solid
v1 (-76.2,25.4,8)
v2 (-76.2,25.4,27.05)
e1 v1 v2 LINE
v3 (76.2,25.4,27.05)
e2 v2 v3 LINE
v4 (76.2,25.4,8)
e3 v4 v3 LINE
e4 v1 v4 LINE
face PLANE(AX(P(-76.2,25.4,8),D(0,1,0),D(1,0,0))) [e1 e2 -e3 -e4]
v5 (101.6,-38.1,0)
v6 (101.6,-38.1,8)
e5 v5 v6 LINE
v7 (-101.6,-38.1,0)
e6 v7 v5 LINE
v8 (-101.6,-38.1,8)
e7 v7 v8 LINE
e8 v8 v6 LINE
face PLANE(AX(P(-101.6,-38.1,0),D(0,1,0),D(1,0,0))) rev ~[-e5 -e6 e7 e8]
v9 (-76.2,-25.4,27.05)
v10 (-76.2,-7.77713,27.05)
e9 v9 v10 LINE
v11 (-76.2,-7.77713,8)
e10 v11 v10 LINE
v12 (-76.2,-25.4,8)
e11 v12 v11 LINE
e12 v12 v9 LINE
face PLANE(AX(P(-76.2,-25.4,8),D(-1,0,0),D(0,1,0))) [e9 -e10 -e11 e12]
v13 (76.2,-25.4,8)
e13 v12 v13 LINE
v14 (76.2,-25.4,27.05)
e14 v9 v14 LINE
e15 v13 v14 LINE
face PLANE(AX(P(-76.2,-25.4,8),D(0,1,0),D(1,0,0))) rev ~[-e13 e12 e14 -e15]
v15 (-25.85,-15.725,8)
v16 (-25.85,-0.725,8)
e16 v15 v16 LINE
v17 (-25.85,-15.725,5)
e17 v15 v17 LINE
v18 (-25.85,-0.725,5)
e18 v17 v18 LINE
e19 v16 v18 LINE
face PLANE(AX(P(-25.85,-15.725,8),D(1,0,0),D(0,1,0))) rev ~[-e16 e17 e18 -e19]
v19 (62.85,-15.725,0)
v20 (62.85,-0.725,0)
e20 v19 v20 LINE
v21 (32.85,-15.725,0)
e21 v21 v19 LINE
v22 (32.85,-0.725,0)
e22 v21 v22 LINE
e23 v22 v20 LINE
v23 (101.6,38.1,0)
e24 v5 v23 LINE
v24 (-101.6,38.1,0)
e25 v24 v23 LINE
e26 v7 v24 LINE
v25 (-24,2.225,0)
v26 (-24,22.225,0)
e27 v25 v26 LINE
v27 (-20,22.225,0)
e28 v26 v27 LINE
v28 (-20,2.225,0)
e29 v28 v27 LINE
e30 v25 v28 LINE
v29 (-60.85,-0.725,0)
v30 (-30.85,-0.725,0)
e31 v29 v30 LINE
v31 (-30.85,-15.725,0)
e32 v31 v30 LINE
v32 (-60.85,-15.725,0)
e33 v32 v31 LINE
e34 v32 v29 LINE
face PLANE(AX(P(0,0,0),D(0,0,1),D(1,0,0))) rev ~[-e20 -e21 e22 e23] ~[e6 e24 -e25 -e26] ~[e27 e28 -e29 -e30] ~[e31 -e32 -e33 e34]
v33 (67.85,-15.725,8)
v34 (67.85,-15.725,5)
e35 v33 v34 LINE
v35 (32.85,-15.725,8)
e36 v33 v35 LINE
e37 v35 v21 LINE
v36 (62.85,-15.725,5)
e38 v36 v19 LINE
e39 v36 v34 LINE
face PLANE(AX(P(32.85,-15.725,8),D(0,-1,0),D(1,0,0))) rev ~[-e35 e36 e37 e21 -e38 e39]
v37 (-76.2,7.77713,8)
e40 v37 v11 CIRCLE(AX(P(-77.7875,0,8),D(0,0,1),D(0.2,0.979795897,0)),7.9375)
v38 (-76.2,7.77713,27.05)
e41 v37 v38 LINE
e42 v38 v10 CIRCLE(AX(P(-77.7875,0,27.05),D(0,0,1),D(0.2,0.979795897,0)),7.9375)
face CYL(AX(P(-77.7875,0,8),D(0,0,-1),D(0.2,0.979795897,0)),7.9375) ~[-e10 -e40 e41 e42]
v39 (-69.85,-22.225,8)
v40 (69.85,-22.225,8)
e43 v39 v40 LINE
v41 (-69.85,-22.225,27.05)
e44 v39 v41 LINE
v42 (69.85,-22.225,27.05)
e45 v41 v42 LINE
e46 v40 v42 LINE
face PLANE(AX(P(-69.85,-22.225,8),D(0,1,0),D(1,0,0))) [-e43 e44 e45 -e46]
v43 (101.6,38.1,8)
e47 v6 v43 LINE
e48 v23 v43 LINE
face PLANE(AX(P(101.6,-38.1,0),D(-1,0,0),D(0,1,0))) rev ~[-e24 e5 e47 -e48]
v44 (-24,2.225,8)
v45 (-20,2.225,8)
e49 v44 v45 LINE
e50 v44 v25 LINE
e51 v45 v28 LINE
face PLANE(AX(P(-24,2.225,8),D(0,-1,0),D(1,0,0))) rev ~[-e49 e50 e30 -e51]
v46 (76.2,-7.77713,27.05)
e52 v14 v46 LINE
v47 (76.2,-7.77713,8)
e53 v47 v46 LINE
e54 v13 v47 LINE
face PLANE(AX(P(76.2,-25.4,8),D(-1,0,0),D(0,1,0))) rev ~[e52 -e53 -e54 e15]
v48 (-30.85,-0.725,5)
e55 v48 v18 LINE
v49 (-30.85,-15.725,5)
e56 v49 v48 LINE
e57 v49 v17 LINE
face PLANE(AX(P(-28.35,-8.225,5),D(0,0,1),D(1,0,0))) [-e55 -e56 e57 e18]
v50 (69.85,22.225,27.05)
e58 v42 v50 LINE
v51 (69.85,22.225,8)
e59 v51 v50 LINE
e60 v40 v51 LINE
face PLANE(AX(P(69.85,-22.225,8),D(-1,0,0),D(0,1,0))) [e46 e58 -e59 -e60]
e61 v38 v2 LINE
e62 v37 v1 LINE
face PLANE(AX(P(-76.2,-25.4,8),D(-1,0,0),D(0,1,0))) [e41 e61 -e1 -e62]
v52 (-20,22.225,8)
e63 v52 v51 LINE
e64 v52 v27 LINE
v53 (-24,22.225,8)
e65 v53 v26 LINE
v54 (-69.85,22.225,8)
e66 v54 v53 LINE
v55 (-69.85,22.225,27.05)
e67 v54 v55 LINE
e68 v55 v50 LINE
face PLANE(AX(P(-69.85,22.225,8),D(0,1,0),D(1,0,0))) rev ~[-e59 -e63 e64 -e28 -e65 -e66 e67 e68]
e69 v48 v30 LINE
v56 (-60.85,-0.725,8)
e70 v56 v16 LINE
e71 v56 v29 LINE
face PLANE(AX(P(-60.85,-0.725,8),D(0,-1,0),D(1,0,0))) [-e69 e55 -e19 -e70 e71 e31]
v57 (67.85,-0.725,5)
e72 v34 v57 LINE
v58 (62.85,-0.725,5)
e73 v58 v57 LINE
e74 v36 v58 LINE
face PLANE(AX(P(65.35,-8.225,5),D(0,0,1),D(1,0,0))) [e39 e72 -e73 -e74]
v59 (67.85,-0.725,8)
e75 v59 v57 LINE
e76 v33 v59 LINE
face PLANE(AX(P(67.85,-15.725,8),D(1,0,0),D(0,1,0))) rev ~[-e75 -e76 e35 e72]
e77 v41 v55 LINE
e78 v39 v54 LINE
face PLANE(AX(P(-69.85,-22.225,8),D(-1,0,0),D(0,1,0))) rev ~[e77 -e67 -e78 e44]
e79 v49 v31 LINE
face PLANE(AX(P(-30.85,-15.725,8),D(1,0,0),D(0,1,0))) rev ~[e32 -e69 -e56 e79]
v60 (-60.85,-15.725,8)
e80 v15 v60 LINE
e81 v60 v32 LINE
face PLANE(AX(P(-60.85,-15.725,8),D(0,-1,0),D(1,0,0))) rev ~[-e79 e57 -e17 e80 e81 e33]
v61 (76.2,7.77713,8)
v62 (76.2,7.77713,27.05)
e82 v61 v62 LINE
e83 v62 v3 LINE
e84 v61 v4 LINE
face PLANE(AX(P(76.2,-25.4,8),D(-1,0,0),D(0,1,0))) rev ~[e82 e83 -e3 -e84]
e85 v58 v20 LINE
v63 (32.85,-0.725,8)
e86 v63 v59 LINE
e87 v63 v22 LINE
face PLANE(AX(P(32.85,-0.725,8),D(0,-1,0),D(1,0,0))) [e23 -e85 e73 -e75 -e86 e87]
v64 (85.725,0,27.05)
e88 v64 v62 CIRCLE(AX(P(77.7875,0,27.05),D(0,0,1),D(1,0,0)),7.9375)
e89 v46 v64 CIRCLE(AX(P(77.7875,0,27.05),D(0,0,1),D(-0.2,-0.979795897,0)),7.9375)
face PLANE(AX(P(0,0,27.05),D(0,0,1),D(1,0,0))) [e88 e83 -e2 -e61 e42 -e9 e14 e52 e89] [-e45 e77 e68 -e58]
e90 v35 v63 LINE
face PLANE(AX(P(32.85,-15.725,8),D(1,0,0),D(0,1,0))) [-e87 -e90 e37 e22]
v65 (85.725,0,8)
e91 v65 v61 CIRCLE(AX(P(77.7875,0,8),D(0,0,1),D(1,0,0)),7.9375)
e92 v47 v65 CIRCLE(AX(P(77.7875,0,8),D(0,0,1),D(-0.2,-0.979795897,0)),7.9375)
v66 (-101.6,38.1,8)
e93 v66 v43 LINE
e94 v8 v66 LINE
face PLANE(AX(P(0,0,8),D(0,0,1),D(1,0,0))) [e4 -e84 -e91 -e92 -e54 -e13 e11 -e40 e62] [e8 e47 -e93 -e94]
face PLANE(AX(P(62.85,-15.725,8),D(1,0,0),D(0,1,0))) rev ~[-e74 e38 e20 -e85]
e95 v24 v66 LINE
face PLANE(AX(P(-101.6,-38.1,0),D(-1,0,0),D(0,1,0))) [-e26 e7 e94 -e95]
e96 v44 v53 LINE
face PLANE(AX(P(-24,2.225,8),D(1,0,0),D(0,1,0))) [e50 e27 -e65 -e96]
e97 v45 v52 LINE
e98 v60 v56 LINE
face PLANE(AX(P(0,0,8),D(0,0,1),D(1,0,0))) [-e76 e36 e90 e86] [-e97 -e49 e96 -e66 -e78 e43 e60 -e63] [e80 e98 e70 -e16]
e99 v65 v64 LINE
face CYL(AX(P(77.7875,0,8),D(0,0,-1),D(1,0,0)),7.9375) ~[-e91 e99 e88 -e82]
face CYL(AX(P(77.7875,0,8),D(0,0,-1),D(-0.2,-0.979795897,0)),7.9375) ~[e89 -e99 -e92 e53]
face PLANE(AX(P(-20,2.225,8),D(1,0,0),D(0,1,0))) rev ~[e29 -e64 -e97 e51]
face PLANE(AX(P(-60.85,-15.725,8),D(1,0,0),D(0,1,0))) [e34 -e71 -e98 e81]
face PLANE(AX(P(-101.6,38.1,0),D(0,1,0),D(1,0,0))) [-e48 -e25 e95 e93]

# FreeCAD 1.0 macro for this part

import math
import FreeCAD as App
import Part
import Sketcher

V = App.Vector


def add_polygon(sketch, points):
    """Adds a closed chain of lines whose ends are joined by coincident constraints."""
    first, n = sketch.GeometryCount, len(points)
    for a, b in zip(points, points[1:] + points[:1]):
        sketch.addGeometry(Part.LineSegment(App.Vector(*a, 0), App.Vector(*b, 0)), False)
    for i in range(n):
        sketch.addConstraint(Sketcher.Constraint("Coincident", first + i, 2, first + (i + 1) % n, 1))

doc = App.newDocument("Part")
body = doc.addObject("PartDesign::Body", "Body")

# Sketch on XY plane
sketch1 = doc.addObject("Sketcher::SketchObject", "Sketch")
body.addObject(sketch1)
sketch1.AttachmentSupport = (doc.XY_Plane, [""])
sketch1.MapMode = "FlatFace"
add_polygon(sketch1, [(-102, 38), (-102, -38), (102, -38), (102, 38)])  # lines 0-3
sketch1.addConstraint(Sketcher.Constraint("Vertical", 0))
sketch1.addConstraint(Sketcher.Constraint("Horizontal", 1))
sketch1.addConstraint(Sketcher.Constraint("Vertical", 2))
sketch1.addConstraint(Sketcher.Constraint("Horizontal", 3))
sketch1.addConstraint(Sketcher.Constraint("Symmetric", 0, 2, 2, 2, -1, 1))
sketch1.addConstraint(Sketcher.Constraint("DistanceX", 1, 1, 1, 2, 203.2))
sketch1.addConstraint(Sketcher.Constraint("DistanceY", 0, 2, 0, 1, 76.2))
pad1 = doc.addObject("PartDesign::Pad", "Pad")
body.addObject(pad1)
pad1.Profile = sketch1
pad1.Length = 8

# Sketch on XY plane
sketch2 = doc.addObject("Sketcher::SketchObject", "Sketch001")
body.addObject(sketch2)
sketch2.AttachmentSupport = (doc.XY_Plane, [""])
sketch2.MapMode = "FlatFace"
sketch2.AttachmentOffset = App.Placement(V(0, 0, 8), App.Rotation())
sketch2.addGeometry(Part.LineSegment(V(-76, -8, 0), V(-76, -25, 0)), False)  # 0
sketch2.addGeometry(Part.LineSegment(V(-76, -25, 0), V(76, -25, 0)), False)  # 1
sketch2.addGeometry(Part.LineSegment(V(76, -25, 0), V(76, -8, 0)), False)  # 2
sketch2.addGeometry(Part.ArcOfCircle(Part.Circle(V(78, 0, 0), V(0, 0, 1), 8), math.radians(-102), math.radians(0)), False)  # 3
sketch2.addGeometry(Part.ArcOfCircle(Part.Circle(V(78, 0, 0), V(0, 0, 1), 8), math.radians(0), math.radians(102)), False)  # 4
sketch2.addGeometry(Part.LineSegment(V(76, 8, 0), V(76, 25, 0)), False)  # 5
sketch2.addGeometry(Part.LineSegment(V(76, 25, 0), V(-76, 25, 0)), False)  # 6
sketch2.addGeometry(Part.LineSegment(V(-76, 25, 0), V(-76, 8, 0)), False)  # 7
sketch2.addGeometry(Part.ArcOfCircle(Part.Circle(V(-78, 0, 0), V(0, 0, 1), 8), math.radians(78), math.radians(282)), False)  # 8
add_polygon(sketch2, [(70, -22), (-70, -22), (-70, 22), (70, 22)])  # lines 9-12
sketch2.addConstraint(Sketcher.Constraint("Coincident", 0, 2, 1, 1))
sketch2.addConstraint(Sketcher.Constraint("Coincident", 1, 2, 2, 1))
sketch2.addConstraint(Sketcher.Constraint("Coincident", 2, 2, 3, 1))
sketch2.addConstraint(Sketcher.Constraint("Tangent", 3, 2, 4, 1))
sketch2.addConstraint(Sketcher.Constraint("Coincident", 4, 2, 5, 1))
sketch2.addConstraint(Sketcher.Constraint("Coincident", 5, 2, 6, 1))
sketch2.addConstraint(Sketcher.Constraint("Coincident", 6, 2, 7, 1))
sketch2.addConstraint(Sketcher.Constraint("Coincident", 7, 2, 8, 1))
sketch2.addConstraint(Sketcher.Constraint("Coincident", 8, 2, 0, 1))
sketch2.addConstraint(Sketcher.Constraint("Vertical", 0))
sketch2.addConstraint(Sketcher.Constraint("Horizontal", 1))
sketch2.addConstraint(Sketcher.Constraint("Vertical", 2))
sketch2.addConstraint(Sketcher.Constraint("Vertical", 5))
sketch2.addConstraint(Sketcher.Constraint("Horizontal", 6))
sketch2.addConstraint(Sketcher.Constraint("Vertical", 7))
sketch2.addConstraint(Sketcher.Constraint("Horizontal", 9))
sketch2.addConstraint(Sketcher.Constraint("Vertical", 10))
sketch2.addConstraint(Sketcher.Constraint("Horizontal", 11))
sketch2.addConstraint(Sketcher.Constraint("Vertical", 12))
sketch2.addConstraint(Sketcher.Constraint("Equal", 3, 4))
sketch2.addConstraint(Sketcher.Constraint("Equal", 4, 8))
sketch2.addConstraint(Sketcher.Constraint("Symmetric", 3, 3, 8, 3, -1, 1))
sketch2.addConstraint(Sketcher.Constraint("Symmetric", 0, 2, 5, 2, -1, 1))
sketch2.addConstraint(Sketcher.Constraint("Symmetric", 9, 2, 11, 2, -1, 1))
sketch2.addConstraint(Sketcher.Constraint("Symmetric", 4, 2, 7, 2, -2))
sketch2.addConstraint(Sketcher.Constraint("PointOnObject", 3, 2, -1))
sketch2.addConstraint(Sketcher.Constraint("Horizontal", 2, 2, 8, 2))
sketch2.addConstraint(Sketcher.Constraint("DistanceX", 1, 1, 1, 2, 152.4))
sketch2.addConstraint(Sketcher.Constraint("DistanceX", 9, 2, 9, 1, 139.7))
sketch2.addConstraint(Sketcher.Constraint("DistanceY", 10, 1, 10, 2, 44.45))
sketch2.addConstraint(Sketcher.Constraint("DistanceY", 0, 2, -1, 1, 25.4))
sketch2.addConstraint(Sketcher.Constraint("Radius", 3, 7.9375))
sketch2.addConstraint(Sketcher.Constraint("DistanceX", -1, 1, 3, 2, 85.725))
pad2 = doc.addObject("PartDesign::Pad", "Pad001")
body.addObject(pad2)
pad2.Profile = sketch2
pad2.Length = 19.05

# Sketch on XY plane
sketch3 = doc.addObject("Sketcher::SketchObject", "Sketch002")
body.addObject(sketch3)
sketch3.AttachmentSupport = (doc.XY_Plane, [""])
sketch3.MapMode = "FlatFace"
sketch3.AttachmentOffset = App.Placement(V(0, 0, 8), App.Rotation())
add_polygon(sketch3, [(33, -1), (33, -16), (63, -16), (63, -1)])  # lines 0-3
add_polygon(sketch3, [(-61, -1), (-61, -16), (-31, -16), (-31, -1)])  # lines 4-7
sketch3.addConstraint(Sketcher.Constraint("Vertical", 0))
sketch3.addConstraint(Sketcher.Constraint("Horizontal", 1))
sketch3.addConstraint(Sketcher.Constraint("Vertical", 2))
sketch3.addConstraint(Sketcher.Constraint("Horizontal", 3))
sketch3.addConstraint(Sketcher.Constraint("Vertical", 4))
sketch3.addConstraint(Sketcher.Constraint("Horizontal", 5))
sketch3.addConstraint(Sketcher.Constraint("Vertical", 6))
sketch3.addConstraint(Sketcher.Constraint("Horizontal", 7))
sketch3.addConstraint(Sketcher.Constraint("Horizontal", 1, 2, 4, 2))
sketch3.addConstraint(Sketcher.Constraint("Horizontal", 3, 2, 6, 2))
sketch3.addConstraint(Sketcher.Constraint("Equal", 3, 5))
sketch3.addConstraint(Sketcher.Constraint("DistanceX", 1, 1, 1, 2, 30.0))
sketch3.addConstraint(Sketcher.Constraint("DistanceY", 0, 2, 0, 1, 15.0))
sketch3.addConstraint(Sketcher.Constraint("DistanceX", 4, 2, 0, 2, 93.7))
sketch3.addConstraint(Sketcher.Constraint("DistanceX", -1, 1, 0, 2, 32.85))
sketch3.addConstraint(Sketcher.Constraint("DistanceY", 0, 2, -1, 1, 15.725))
pocket1 = doc.addObject("PartDesign::Pocket", "Pocket")
body.addObject(pocket1)
pocket1.Profile = sketch3
pocket1.Type = "ThroughAll"

# Sketch on XY plane
sketch4 = doc.addObject("Sketcher::SketchObject", "Sketch003")
body.addObject(sketch4)
sketch4.AttachmentSupport = (doc.XY_Plane, [""])
sketch4.MapMode = "FlatFace"
sketch4.AttachmentOffset = App.Placement(V(0, 0, 8), App.Rotation())
add_polygon(sketch4, [(-24, 22.2), (-24, 2.2), (-20, 2.2), (-20, 22.2)])  # lines 0-3
sketch4.addConstraint(Sketcher.Constraint("Vertical", 0))
sketch4.addConstraint(Sketcher.Constraint("Horizontal", 1))
sketch4.addConstraint(Sketcher.Constraint("Vertical", 2))
sketch4.addConstraint(Sketcher.Constraint("Horizontal", 3))
sketch4.addConstraint(Sketcher.Constraint("DistanceX", 1, 1, 1, 2, 4.0))
sketch4.addConstraint(Sketcher.Constraint("DistanceY", 0, 2, 0, 1, 20.0))
sketch4.addConstraint(Sketcher.Constraint("DistanceX", 0, 2, -1, 1, 24.0))
sketch4.addConstraint(Sketcher.Constraint("DistanceY", -1, 1, 0, 2, 2.225))
pocket2 = doc.addObject("PartDesign::Pocket", "Pocket001")
body.addObject(pocket2)
pocket2.Profile = sketch4
pocket2.Type = "ThroughAll"

# Sketch on XY plane
sketch5 = doc.addObject("Sketcher::SketchObject", "Sketch004")
body.addObject(sketch5)
sketch5.AttachmentSupport = (doc.XY_Plane, [""])
sketch5.MapMode = "FlatFace"
sketch5.AttachmentOffset = App.Placement(V(0, 0, 8), App.Rotation())
add_polygon(sketch5, [(62.9, -0.7), (62.9, -15.7), (67.8, -15.7), (67.8, -0.7)])  # lines 0-3
add_polygon(sketch5, [(-30.9, -0.7), (-30.9, -15.7), (-25.9, -15.7), (-25.9, -0.7)])  # lines 4-7
sketch5.addConstraint(Sketcher.Constraint("Vertical", 0))
sketch5.addConstraint(Sketcher.Constraint("Horizontal", 1))
sketch5.addConstraint(Sketcher.Constraint("Vertical", 2))
sketch5.addConstraint(Sketcher.Constraint("Horizontal", 3))
sketch5.addConstraint(Sketcher.Constraint("Vertical", 4))
sketch5.addConstraint(Sketcher.Constraint("Horizontal", 5))
sketch5.addConstraint(Sketcher.Constraint("Vertical", 6))
sketch5.addConstraint(Sketcher.Constraint("Horizontal", 7))
sketch5.addConstraint(Sketcher.Constraint("Horizontal", 1, 2, 4, 2))
sketch5.addConstraint(Sketcher.Constraint("Horizontal", 3, 2, 6, 2))
sketch5.addConstraint(Sketcher.Constraint("Equal", 3, 5))
sketch5.addConstraint(Sketcher.Constraint("DistanceX", 1, 1, 1, 2, 5.0))
sketch5.addConstraint(Sketcher.Constraint("DistanceY", 0, 2, 0, 1, 15.0))
sketch5.addConstraint(Sketcher.Constraint("DistanceX", 4, 2, 0, 2, 93.7))
sketch5.addConstraint(Sketcher.Constraint("DistanceX", -1, 1, 0, 2, 62.85))
sketch5.addConstraint(Sketcher.Constraint("DistanceY", 0, 2, -1, 1, 15.725))
pocket3 = doc.addObject("PartDesign::Pocket", "Pocket002")
body.addObject(pocket3)
pocket3.Profile = sketch5
pocket3.Length = 3

doc.recompute()
